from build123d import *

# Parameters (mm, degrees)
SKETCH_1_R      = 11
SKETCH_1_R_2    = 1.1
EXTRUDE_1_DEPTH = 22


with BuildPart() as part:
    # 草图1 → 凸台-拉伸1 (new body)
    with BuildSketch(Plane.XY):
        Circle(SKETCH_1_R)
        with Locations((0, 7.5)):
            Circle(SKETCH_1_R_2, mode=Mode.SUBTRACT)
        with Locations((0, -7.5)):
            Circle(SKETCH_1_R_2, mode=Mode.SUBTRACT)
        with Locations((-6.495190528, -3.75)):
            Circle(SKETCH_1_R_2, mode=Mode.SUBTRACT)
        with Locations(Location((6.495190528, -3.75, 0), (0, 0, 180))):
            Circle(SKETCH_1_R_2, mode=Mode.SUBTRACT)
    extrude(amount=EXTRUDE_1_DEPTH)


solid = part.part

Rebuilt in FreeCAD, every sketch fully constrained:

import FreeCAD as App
import Part
import Sketcher

V = App.Vector
Q = App.Units.Quantity

doc = App.newDocument("Part")
body = doc.addObject("PartDesign::Body", "Body")

# Sketch on XY plane
sketch1 = body.newObject("Sketcher::SketchObject", "Sketch")
sketch1.AttachmentSupport = (doc.getObject("XY_Plane"), [""])
sketch1.MapMode = "FlatFace"
sketch1.addGeometry(Part.Circle(V(0, 0, 0), V(0, 0, 1), 11), False)
sketch1.addGeometry(Part.Circle(V(-6.5, -3.8, 0), V(0, 0, 1), 1.1), False)
sketch1.addGeometry(Part.Circle(V(0, -7.5, 0), V(0, 0, 1), 1.1), False)
sketch1.addGeometry(Part.Circle(V(6.5, -3.8, 0), V(0, 0, 1), 1.1), False)
sketch1.addGeometry(Part.Circle(V(0, 7.5, 0), V(0, 0, 1), 1.1), False)
sketch1.addConstraint(Sketcher.Constraint("Coincident", 0, 3, -1, 1))
sketch1.addConstraint(Sketcher.Constraint("Equal", 1, 2))
sketch1.addConstraint(Sketcher.Constraint("Equal", 2, 3))
sketch1.addConstraint(Sketcher.Constraint("Equal", 3, 4))
sketch1.addConstraint(Sketcher.Constraint("Symmetric", 2, 3, 4, 3, -1, 1))
sketch1.addConstraint(Sketcher.Constraint("Symmetric", 1, 3, 3, 3, -2))
sketch1.addConstraint(Sketcher.Constraint("PointOnObject", 2, 3, -2))
sketch1.addConstraint(Sketcher.Constraint("Diameter", 0, Q("22 mm")))
sketch1.addConstraint(Sketcher.Constraint("Diameter", 1, Q("2.2 mm")))
sketch1.addConstraint(Sketcher.Constraint("DistanceY", 2, 3, 4, 3, Q("15 mm")))
sketch1.addConstraint(Sketcher.Constraint("DistanceY", 1, 3, -1, 1, Q("3.75 mm")))
sketch1.addConstraint(Sketcher.Constraint("DistanceX", 1, 3, -1, 1, Q("6.495191 mm")))
pad1 = body.newObject("PartDesign::Pad", "Pad")
pad1.Profile = sketch1
pad1.Length = 22

doc.recompute()
